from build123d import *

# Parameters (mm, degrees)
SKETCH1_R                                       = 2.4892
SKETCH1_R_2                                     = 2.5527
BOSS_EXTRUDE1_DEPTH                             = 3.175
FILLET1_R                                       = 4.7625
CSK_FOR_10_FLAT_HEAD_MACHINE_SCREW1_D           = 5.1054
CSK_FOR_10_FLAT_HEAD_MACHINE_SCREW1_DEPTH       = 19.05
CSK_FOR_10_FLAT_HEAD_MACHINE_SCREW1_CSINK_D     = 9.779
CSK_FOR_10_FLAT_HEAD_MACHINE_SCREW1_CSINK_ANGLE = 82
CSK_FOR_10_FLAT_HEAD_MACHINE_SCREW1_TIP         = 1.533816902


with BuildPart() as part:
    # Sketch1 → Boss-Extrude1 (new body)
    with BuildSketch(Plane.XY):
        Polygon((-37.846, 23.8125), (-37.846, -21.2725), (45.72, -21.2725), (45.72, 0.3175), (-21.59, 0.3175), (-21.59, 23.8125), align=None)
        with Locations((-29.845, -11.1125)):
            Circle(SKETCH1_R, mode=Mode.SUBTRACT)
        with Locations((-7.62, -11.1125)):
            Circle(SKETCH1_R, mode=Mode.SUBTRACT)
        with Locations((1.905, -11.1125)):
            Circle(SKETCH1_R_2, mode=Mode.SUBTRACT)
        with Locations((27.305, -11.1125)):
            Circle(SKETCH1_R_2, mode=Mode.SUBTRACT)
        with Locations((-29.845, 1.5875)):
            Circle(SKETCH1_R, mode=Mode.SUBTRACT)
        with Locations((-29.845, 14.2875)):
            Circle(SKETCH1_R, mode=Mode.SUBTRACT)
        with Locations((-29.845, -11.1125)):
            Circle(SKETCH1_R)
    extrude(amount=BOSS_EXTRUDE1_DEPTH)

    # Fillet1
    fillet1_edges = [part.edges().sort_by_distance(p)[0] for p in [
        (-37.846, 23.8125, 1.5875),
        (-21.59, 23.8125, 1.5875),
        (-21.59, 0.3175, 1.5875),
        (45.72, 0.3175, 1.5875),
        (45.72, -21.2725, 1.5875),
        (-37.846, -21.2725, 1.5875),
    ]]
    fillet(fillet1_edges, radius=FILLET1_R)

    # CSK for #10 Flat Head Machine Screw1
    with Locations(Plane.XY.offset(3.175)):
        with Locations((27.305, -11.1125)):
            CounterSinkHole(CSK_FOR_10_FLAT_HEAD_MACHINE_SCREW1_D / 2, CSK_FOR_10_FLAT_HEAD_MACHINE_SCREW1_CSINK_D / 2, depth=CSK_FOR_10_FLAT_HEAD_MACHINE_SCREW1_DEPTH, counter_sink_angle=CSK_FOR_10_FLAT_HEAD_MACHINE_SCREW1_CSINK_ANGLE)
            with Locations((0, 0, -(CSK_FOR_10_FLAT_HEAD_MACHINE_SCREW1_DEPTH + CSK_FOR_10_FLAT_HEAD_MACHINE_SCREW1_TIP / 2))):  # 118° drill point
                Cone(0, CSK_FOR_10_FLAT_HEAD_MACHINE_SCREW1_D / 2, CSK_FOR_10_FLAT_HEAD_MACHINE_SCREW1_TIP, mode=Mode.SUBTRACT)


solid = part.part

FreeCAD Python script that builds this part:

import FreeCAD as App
import Part
import Sketcher
from FreeCAD import Vector
Q = App.Units.Quantity


def edges_at(feature, points):
    """Names of the edges that pass closest to the given points."""
    edges = feature.Shape.Edges
    near = lambda p: min(range(len(edges)), key=lambda i: edges[i].distToShape(Part.Vertex(*p))[0])
    return sorted({f"Edge{near(p) + 1}" for p in points})


def add_polygon(sketch, points):
    """Adds a closed chain of lines whose ends are joined by coincident constraints."""
    first, n = sketch.GeometryCount, len(points)
    for a, b in zip(points, points[1:] + points[:1]):
        sketch.addGeometry(Part.LineSegment(App.Vector(*a, 0), App.Vector(*b, 0)), False)
    for i in range(n):
        sketch.addConstraint(Sketcher.Constraint("Coincident", first + i, 2, first + (i + 1) % n, 1))

doc = App.newDocument("Part")
body = doc.addObject("PartDesign::Body", "Body")

# Sketch on XY plane
sketch1 = body.newObject("Sketcher::SketchObject", "Sketch")
sketch1.AttachmentSupport = (doc.getObject("XY_Plane"), [""])
sketch1.MapMode = "FlatFace"
add_polygon(sketch1, [(-37.8, 23.8), (-37.8, -21.3), (45.7, -21.3), (45.7, 0.3), (-21.6, 0.3), (-21.6, 23.8)])  # lines 0-5
sketch1.addGeometry(Part.Circle(Vector(-7.6, -11.1, 0), Vector(0, 0, 1), 2.5), False)  # 6
sketch1.addGeometry(Part.Circle(Vector(1.9, -11.1, 0), Vector(0, 0, 1), 2.6), False)  # 7
sketch1.addGeometry(Part.Circle(Vector(27.3, -11.1, 0), Vector(0, 0, 1), 2.6), False)  # 8
sketch1.addGeometry(Part.Circle(Vector(-29.8, 1.6, 0), Vector(0, 0, 1), 2.5), False)  # 9
sketch1.addGeometry(Part.Circle(Vector(-29.8, 14.3, 0), Vector(0, 0, 1), 2.5), False)  # 10
sketch1.addConstraint(Sketcher.Constraint("Vertical", 0))
sketch1.addConstraint(Sketcher.Constraint("Horizontal", 1))
sketch1.addConstraint(Sketcher.Constraint("Vertical", 2))
sketch1.addConstraint(Sketcher.Constraint("Horizontal", 3))
sketch1.addConstraint(Sketcher.Constraint("Vertical", 4))
sketch1.addConstraint(Sketcher.Constraint("Horizontal", 5))
sketch1.addConstraint(Sketcher.Constraint("Equal", 7, 8))
sketch1.addConstraint(Sketcher.Constraint("Equal", 6, 9))
sketch1.addConstraint(Sketcher.Constraint("Equal", 9, 10))
sketch1.addConstraint(Sketcher.Constraint("Horizontal", 6, 3, 7, 3))
sketch1.addConstraint(Sketcher.Constraint("Horizontal", 7, 3, 8, 3))
sketch1.addConstraint(Sketcher.Constraint("Vertical", 9, 3, 10, 3))
sketch1.addConstraint(Sketcher.Constraint("Diameter", 6, Q("0.196 in")))
sketch1.addConstraint(Sketcher.Constraint("Diameter", 7, Q("0.201 in")))
sketch1.addConstraint(Sketcher.Constraint("DistanceX", 7, 3, 8, 3, Q("1 in")))
sketch1.addConstraint(Sketcher.Constraint("DistanceY", 6, 3, 10, 3, Q("1 in")))
sketch1.addConstraint(Sketcher.Constraint("DistanceX", 1, 1, 1, 2, Q("3.29 in")))
sketch1.addConstraint(Sketcher.Constraint("DistanceX", 3, 2, 3, 1, Q("2.65 in")))
sketch1.addConstraint(Sketcher.Constraint("DistanceY", 2, 1, 2, 2, Q("0.85 in")))
sketch1.addConstraint(Sketcher.Constraint("DistanceX", 6, 3, -1, 1, Q("0.3 in")))
sketch1.addConstraint(Sketcher.Constraint("DistanceX", -1, 1, 1, 2, Q("1.8 in")))
sketch1.addConstraint(Sketcher.Constraint("DistanceY", 6, 3, 9, 3, Q("0.5 in")))
sketch1.addConstraint(Sketcher.Constraint("DistanceY", 0, 2, 9, 3, Q("0.9 in")))
sketch1.addConstraint(Sketcher.Constraint("DistanceY", 0, 2, 0, 1, Q("1.775 in")))
sketch1.addConstraint(Sketcher.Constraint("DistanceX", 9, 3, 7, 3, Q("1.25 in")))
sketch1.addConstraint(Sketcher.Constraint("DistanceY", 6, 3, -1, 1, Q("0.4375 in")))
sketch1.addConstraint(Sketcher.Constraint("DistanceX", -1, 1, 7, 3, Q("0.075 in")))
pad1 = body.newObject("PartDesign::Pad", "Pad")
pad1.Profile = sketch1
pad1.Length = Q("0.125 in")
doc.recompute()

fillet = body.newObject("PartDesign::Fillet", "Fillet")
fillet.Base = (pad1, edges_at(pad1, [
    (-37.846, 23.812, 1.587),
    (-21.59, 23.812, 1.587),
    (-21.59, 0.318, 1.587),
    (45.72, 0.318, 1.587),
    (45.72, -21.273, 1.587),
    (-37.846, -21.273, 1.587),
]))
fillet.Radius = Q("0.1875 in")

# Sketch on XY plane
sketch2 = body.newObject("Sketcher::SketchObject", "Sketch001")
sketch2.AttachmentSupport = (doc.getObject("XY_Plane"), [""])
sketch2.MapMode = "FlatFace"
sketch2.AttachmentOffset = App.Placement(Vector(0, 0, 0.125 * 25.4), App.Rotation())
sketch2.addGeometry(Part.Circle(Vector(27.3, -11.1, 0), Vector(0, 0, 1), 2.6), False)
sketch2.addConstraint(Sketcher.Constraint("Diameter", 0, Q("0.201 in")))
sketch2.addConstraint(Sketcher.Constraint("DistanceX", -1, 1, 0, 3, Q("1.075 in")))
sketch2.addConstraint(Sketcher.Constraint("DistanceY", 0, 3, -1, 1, Q("0.4375 in")))
doc.recompute()
hole = body.newObject("PartDesign::Hole", "Hole")
hole.Profile = sketch2
hole.ThreadType = "None"
hole.Diameter = Q("0.201 in")
hole.DepthType = "Dimension"
hole.Depth = Q("0.75 in")
hole.DrillPoint = "Angled"
hole.DrillPointAngle = 118
hole.HoleCutType = "Countersink"
hole.HoleCutDiameter = Q("0.385 in")
hole.HoleCutCountersinkAngle = 82

doc.recompute()
